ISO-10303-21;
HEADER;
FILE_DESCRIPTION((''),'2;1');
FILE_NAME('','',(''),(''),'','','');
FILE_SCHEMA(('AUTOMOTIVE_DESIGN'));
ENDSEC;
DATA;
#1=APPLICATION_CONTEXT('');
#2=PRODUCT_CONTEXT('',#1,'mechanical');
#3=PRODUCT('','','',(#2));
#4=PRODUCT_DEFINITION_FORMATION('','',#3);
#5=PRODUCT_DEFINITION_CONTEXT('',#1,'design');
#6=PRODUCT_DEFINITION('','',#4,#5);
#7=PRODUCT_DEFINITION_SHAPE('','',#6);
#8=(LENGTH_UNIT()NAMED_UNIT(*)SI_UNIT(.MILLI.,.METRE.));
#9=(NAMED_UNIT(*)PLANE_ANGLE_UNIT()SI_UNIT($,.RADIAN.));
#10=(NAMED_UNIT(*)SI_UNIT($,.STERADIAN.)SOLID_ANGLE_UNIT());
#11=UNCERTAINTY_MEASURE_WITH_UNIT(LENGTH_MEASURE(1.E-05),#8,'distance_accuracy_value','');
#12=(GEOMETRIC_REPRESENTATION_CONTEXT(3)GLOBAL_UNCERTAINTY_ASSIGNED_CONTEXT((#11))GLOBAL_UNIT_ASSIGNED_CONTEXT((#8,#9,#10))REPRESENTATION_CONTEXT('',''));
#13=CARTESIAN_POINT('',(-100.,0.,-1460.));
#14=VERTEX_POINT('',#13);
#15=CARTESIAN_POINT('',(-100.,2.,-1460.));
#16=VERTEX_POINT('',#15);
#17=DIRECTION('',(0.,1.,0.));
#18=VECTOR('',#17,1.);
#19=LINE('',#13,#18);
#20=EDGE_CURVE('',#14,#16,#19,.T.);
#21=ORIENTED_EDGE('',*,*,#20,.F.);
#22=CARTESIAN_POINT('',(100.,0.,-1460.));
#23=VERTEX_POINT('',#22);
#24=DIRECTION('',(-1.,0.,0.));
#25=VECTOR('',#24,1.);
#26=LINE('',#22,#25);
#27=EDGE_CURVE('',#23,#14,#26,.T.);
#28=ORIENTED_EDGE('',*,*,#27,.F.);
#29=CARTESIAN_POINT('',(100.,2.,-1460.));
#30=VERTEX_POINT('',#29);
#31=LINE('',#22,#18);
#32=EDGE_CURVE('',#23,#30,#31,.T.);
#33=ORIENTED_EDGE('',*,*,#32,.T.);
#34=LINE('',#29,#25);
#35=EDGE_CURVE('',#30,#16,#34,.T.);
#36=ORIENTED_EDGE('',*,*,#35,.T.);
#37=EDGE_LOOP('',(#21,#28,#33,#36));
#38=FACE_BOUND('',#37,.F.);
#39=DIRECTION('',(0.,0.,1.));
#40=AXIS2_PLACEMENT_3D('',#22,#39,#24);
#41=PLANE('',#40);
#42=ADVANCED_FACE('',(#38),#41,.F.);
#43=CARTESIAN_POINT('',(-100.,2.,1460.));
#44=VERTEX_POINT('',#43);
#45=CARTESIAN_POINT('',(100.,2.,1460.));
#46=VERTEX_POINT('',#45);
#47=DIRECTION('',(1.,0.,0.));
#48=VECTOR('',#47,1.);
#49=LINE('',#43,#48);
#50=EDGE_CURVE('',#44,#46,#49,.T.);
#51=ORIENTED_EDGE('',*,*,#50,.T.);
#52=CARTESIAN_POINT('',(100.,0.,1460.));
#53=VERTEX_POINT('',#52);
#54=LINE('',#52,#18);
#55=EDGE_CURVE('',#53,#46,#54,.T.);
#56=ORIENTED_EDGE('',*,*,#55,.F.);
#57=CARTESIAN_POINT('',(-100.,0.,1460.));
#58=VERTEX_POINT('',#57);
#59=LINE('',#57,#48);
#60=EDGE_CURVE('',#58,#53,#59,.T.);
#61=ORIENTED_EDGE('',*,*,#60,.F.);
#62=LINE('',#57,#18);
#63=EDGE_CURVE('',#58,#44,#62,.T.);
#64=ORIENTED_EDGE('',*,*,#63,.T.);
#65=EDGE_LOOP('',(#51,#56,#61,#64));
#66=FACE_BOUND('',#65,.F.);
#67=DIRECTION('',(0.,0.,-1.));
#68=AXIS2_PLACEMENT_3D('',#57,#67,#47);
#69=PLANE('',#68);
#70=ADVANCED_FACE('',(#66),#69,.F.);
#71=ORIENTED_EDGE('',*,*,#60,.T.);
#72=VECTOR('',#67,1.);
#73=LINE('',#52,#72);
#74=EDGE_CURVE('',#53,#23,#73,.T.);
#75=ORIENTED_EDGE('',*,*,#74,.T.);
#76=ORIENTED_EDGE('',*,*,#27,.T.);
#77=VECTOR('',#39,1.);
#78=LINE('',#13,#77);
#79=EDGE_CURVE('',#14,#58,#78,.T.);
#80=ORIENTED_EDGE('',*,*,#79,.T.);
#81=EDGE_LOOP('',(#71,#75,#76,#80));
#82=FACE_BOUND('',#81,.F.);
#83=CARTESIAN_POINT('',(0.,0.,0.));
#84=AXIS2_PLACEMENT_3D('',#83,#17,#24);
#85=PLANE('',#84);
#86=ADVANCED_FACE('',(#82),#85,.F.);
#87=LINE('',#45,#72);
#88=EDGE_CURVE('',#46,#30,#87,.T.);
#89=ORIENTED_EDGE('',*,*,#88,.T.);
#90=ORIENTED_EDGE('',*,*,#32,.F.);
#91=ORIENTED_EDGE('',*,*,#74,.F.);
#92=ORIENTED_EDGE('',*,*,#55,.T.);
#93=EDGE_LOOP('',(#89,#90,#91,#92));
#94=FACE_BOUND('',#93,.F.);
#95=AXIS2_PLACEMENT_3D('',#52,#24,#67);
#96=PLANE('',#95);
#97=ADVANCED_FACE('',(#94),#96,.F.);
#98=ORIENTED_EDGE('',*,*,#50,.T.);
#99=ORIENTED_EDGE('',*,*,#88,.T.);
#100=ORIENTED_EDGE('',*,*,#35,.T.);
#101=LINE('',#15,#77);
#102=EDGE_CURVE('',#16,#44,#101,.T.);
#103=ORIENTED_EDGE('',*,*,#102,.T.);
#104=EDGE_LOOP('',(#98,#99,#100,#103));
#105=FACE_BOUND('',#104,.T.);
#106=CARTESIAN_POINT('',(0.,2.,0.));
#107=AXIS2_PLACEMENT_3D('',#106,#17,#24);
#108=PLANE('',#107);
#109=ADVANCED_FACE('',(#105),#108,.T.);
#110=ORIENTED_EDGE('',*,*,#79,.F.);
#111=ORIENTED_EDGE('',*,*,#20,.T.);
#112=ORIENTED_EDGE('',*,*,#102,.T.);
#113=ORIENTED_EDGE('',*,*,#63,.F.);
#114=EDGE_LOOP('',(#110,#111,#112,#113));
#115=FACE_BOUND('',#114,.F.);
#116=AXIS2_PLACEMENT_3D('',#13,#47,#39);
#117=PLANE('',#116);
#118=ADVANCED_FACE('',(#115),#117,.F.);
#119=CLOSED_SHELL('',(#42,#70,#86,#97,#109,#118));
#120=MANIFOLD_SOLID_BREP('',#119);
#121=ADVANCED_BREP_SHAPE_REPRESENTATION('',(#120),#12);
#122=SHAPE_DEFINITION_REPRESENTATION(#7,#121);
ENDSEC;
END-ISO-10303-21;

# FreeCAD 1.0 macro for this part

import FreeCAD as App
import Part
import Sketcher

V = App.Vector

doc = App.newDocument("Part")
body = doc.addObject("PartDesign::Body", "Body")

sketch1 = body.newObject("Sketcher::SketchObject", "Sketch")
sketch1.AttachmentSupport = (doc.getObject("XZ_Plane"), [""])
sketch1.MapMode = "FlatFace"
sketch1.addGeometry(Part.LineSegment(V(-100, -1460, 0), V(-100, 1460, 0)), False)
sketch1.addGeometry(Part.LineSegment(V(-100, 1460, 0), V(100, 1460, 0)), False)
sketch1.addGeometry(Part.LineSegment(V(100, 1460, 0), V(100, -1460, 0)), False)
sketch1.addGeometry(Part.LineSegment(V(100, -1460, 0), V(-100, -1460, 0)), False)
sketch1.addConstraint(Sketcher.Constraint("Coincident", 0, 2, 1, 1))
sketch1.addConstraint(Sketcher.Constraint("Coincident", 1, 2, 2, 1))
sketch1.addConstraint(Sketcher.Constraint("Coincident", 2, 2, 3, 1))
sketch1.addConstraint(Sketcher.Constraint("Coincident", 3, 2, 0, 1))
sketch1.addConstraint(Sketcher.Constraint("Vertical", 0))
sketch1.addConstraint(Sketcher.Constraint("Horizontal", 1))
sketch1.addConstraint(Sketcher.Constraint("Vertical", 2))
sketch1.addConstraint(Sketcher.Constraint("Horizontal", 3))
sketch1.addConstraint(Sketcher.Constraint("Symmetric", 0, 2, 2, 2, -1, 1))
sketch1.addConstraint(Sketcher.Constraint("DistanceX", 1, 1, 1, 2, 200.0))
sketch1.addConstraint(Sketcher.Constraint("DistanceY", 0, 1, 0, 2, 2920.0))
pad1 = body.newObject("PartDesign::Pad", "Pad")
pad1.Profile = sketch1
pad1.Length = 2
pad1.Reversed = True

doc.recompute()
